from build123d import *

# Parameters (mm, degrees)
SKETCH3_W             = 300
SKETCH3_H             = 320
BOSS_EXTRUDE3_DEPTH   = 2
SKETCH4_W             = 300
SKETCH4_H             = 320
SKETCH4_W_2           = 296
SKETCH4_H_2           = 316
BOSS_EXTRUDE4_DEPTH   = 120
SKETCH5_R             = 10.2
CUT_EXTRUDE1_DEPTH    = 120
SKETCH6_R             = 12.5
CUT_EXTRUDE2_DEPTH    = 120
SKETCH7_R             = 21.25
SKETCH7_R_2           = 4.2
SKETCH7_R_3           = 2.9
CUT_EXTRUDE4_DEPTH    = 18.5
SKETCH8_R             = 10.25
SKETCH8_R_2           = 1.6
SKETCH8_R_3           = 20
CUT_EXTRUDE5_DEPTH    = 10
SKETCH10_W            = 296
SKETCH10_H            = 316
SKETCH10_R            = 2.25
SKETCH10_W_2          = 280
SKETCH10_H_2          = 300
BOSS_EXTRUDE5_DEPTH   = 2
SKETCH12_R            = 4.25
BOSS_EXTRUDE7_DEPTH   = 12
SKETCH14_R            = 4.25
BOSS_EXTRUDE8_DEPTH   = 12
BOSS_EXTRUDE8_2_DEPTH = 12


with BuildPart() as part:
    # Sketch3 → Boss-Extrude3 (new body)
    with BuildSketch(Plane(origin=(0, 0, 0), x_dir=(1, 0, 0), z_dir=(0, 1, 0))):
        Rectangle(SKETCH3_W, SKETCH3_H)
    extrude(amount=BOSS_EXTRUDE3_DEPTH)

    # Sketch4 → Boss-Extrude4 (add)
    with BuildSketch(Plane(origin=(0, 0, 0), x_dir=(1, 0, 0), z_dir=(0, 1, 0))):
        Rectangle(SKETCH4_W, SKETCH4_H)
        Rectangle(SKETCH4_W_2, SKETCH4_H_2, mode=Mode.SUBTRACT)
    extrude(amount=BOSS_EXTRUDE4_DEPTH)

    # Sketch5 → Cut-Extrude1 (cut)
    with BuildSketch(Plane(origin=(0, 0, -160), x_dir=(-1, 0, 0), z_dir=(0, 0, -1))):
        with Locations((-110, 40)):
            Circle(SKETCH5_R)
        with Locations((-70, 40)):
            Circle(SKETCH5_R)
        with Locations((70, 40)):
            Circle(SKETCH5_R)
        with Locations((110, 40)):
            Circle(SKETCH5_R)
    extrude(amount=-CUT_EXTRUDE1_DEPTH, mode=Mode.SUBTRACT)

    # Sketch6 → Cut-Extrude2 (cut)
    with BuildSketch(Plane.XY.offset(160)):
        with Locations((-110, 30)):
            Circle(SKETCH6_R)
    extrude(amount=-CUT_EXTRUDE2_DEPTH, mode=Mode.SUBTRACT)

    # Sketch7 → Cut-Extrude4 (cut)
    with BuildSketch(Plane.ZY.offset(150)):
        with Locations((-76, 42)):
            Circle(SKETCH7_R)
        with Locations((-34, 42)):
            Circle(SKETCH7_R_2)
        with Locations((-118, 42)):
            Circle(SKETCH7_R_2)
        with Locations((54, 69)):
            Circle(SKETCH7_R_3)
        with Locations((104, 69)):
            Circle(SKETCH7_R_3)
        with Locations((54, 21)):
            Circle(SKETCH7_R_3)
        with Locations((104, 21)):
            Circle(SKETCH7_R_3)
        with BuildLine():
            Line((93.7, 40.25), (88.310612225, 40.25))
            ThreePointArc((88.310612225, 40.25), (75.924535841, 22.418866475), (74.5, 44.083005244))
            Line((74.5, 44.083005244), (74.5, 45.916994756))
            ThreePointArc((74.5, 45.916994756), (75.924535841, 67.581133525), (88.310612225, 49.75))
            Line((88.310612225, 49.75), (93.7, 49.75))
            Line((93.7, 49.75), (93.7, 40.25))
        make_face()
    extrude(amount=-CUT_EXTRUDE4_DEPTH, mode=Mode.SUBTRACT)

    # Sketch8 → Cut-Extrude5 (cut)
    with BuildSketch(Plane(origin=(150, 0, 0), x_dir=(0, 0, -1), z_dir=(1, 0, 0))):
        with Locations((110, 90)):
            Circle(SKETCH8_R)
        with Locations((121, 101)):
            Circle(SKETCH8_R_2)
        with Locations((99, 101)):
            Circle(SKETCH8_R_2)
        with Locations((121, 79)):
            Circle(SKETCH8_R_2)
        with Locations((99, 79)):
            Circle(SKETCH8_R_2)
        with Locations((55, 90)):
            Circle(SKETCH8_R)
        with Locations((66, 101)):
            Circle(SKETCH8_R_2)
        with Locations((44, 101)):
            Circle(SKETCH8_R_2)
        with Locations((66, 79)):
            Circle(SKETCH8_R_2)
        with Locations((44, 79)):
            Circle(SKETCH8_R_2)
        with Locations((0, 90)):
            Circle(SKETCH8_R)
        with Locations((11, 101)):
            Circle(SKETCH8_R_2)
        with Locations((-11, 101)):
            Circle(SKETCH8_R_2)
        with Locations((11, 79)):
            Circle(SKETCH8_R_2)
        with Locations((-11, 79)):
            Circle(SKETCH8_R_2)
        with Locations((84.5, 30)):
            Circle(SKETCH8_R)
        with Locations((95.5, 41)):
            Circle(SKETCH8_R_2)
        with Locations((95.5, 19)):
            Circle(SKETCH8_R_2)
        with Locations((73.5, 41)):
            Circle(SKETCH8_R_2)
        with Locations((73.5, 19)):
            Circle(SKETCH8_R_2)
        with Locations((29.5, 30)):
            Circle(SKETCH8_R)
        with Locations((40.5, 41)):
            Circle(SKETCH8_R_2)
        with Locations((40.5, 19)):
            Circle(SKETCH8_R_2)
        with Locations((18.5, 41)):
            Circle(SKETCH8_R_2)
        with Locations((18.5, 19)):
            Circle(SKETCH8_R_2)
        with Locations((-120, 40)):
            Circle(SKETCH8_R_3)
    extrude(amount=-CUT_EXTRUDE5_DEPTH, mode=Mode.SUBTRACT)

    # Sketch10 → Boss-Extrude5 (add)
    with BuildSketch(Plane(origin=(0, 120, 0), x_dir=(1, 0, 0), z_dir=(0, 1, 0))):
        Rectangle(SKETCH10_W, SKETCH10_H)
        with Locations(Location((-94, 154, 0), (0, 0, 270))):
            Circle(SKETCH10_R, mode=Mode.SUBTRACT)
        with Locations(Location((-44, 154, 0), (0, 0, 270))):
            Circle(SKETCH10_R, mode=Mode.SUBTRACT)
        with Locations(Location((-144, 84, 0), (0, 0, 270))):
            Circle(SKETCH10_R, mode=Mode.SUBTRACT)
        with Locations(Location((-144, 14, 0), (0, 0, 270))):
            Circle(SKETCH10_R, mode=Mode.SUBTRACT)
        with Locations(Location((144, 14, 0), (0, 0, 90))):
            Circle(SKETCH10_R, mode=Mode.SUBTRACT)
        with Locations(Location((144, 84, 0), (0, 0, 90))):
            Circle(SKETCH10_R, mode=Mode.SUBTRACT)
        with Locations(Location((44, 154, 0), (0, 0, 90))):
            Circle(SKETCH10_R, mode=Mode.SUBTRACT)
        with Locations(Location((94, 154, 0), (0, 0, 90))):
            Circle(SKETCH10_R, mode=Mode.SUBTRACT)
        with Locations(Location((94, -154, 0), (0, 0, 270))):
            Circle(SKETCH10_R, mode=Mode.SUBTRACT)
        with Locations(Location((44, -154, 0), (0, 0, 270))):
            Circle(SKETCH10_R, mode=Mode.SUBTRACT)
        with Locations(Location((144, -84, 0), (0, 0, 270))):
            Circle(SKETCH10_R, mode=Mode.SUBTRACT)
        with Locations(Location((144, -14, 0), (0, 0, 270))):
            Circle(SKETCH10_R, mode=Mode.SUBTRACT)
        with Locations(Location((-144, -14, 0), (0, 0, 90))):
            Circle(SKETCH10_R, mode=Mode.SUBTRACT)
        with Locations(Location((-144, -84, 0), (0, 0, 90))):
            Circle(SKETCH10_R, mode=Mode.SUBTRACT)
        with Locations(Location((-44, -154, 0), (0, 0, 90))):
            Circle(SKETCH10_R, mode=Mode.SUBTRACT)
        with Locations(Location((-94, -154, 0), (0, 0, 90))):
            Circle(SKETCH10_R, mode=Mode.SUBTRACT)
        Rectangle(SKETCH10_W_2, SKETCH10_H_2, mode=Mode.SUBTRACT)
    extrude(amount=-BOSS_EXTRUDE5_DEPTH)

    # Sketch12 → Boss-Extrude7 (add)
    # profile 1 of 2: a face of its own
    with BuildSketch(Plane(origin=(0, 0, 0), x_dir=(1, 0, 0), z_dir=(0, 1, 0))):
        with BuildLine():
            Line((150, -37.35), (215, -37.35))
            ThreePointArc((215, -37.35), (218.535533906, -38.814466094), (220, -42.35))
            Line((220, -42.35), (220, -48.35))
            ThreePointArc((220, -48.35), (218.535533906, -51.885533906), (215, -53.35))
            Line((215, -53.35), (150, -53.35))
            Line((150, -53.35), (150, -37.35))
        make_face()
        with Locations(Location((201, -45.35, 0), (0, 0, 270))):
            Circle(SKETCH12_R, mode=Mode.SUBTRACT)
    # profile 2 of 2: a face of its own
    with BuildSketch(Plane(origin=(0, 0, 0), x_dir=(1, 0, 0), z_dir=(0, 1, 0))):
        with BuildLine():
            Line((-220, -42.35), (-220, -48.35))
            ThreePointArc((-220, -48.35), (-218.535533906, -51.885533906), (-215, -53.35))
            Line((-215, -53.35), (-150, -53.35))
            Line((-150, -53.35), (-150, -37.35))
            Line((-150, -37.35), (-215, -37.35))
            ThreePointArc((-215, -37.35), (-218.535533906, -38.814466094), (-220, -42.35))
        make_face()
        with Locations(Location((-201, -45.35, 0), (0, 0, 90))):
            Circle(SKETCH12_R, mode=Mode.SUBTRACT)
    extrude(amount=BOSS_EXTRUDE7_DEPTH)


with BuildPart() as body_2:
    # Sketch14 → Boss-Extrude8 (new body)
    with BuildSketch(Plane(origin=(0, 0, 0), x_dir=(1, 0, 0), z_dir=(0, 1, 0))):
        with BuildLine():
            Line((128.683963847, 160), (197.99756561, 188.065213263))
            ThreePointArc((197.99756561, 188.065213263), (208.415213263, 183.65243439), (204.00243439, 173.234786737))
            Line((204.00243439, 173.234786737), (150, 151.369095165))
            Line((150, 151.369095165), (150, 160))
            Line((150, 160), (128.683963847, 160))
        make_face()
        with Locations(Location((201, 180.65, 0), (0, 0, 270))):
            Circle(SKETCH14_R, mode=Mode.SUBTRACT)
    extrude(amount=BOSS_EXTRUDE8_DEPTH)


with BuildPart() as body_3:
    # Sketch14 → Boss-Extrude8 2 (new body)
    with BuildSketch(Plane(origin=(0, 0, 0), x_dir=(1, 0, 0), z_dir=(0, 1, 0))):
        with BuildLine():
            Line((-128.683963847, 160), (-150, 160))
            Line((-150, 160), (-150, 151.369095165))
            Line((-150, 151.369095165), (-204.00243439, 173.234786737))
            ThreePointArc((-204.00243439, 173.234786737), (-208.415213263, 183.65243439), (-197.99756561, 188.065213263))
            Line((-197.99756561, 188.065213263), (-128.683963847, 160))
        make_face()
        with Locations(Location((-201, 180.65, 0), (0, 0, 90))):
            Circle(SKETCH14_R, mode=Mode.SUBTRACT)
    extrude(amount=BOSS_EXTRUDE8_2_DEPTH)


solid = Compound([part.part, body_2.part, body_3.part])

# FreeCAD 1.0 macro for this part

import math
import FreeCAD as App
import Part
import Sketcher

V = App.Vector
Q = App.Units.Quantity

doc = App.newDocument("Part")
body = doc.addObject("PartDesign::Body", "Body")

# Sketch on XZ plane
sketch1 = body.newObject("Sketcher::SketchObject", "Sketch")
sketch1.AttachmentSupport = (doc.getObject("XZ_Plane"), [""])
sketch1.MapMode = "FlatFace"
sketch1.addGeometry([
    Part.LineSegment(V(-150, -160, 0), V(-150, 160, 0)),
    Part.LineSegment(V(-150, 160, 0), V(150, 160, 0)),
    Part.LineSegment(V(150, 160, 0), V(150, -160, 0)),
    Part.LineSegment(V(150, -160, 0), V(-150, -160, 0)),
], False)
sketch1.addConstraint([
    Sketcher.Constraint("Coincident", 0, 2, 1, 1),
    Sketcher.Constraint("Coincident", 1, 2, 2, 1),
    Sketcher.Constraint("Coincident", 2, 2, 3, 1),
    Sketcher.Constraint("Coincident", 3, 2, 0, 1),
    Sketcher.Constraint("Vertical", 0),
    Sketcher.Constraint("Horizontal", 1),
    Sketcher.Constraint("Vertical", 2),
    Sketcher.Constraint("Horizontal", 3),
    Sketcher.Constraint("Symmetric", 0, 2, 2, 2, -1, 1),
    Sketcher.Constraint("DistanceX", 1, 1, 1, 2, Q("300 mm")),
    Sketcher.Constraint("DistanceY", 0, 1, 0, 2, Q("320 mm")),
])
pad1 = body.newObject("PartDesign::Pad", "Pad")
pad1.Profile = sketch1
pad1.Length = 2
pad1.Reversed = True

# Sketch on XZ plane
sketch2 = body.newObject("Sketcher::SketchObject", "Sketch001")
sketch2.AttachmentSupport = (doc.getObject("XZ_Plane"), [""])
sketch2.MapMode = "FlatFace"
sketch2.addGeometry([
    Part.LineSegment(V(-150, -160, 0), V(-150, 160, 0)),  # 0
    Part.LineSegment(V(-150, 160, 0), V(150, 160, 0)),  # 1
    Part.LineSegment(V(150, 160, 0), V(150, -160, 0)),  # 2
    Part.LineSegment(V(150, -160, 0), V(-150, -160, 0)),  # 3
    Part.LineSegment(V(148, 158, 0), V(-148, 158, 0)),  # 4
    Part.LineSegment(V(-148, 158, 0), V(-148, -158, 0)),  # 5
    Part.LineSegment(V(-148, -158, 0), V(148, -158, 0)),  # 6
    Part.LineSegment(V(148, -158, 0), V(148, 158, 0)),  # 7
], False)
sketch2.addConstraint([
    Sketcher.Constraint("Coincident", 0, 2, 1, 1),
    Sketcher.Constraint("Coincident", 1, 2, 2, 1),
    Sketcher.Constraint("Coincident", 2, 2, 3, 1),
    Sketcher.Constraint("Coincident", 3, 2, 0, 1),
    Sketcher.Constraint("Coincident", 4, 2, 5, 1),
    Sketcher.Constraint("Coincident", 5, 2, 6, 1),
    Sketcher.Constraint("Coincident", 6, 2, 7, 1),
    Sketcher.Constraint("Coincident", 7, 2, 4, 1),
    Sketcher.Constraint("Vertical", 0),
    Sketcher.Constraint("Horizontal", 1),
    Sketcher.Constraint("Vertical", 2),
    Sketcher.Constraint("Horizontal", 3),
    Sketcher.Constraint("Horizontal", 4),
    Sketcher.Constraint("Vertical", 5),
    Sketcher.Constraint("Horizontal", 6),
    Sketcher.Constraint("Vertical", 7),
    Sketcher.Constraint("Symmetric", 0, 2, 2, 2, -1, 1),
    Sketcher.Constraint("Symmetric", 4, 2, 6, 2, -1, 1),
    Sketcher.Constraint("DistanceX", 1, 1, 1, 2, Q("300 mm")),
    Sketcher.Constraint("DistanceX", 4, 2, 4, 1, Q("296 mm")),
    Sketcher.Constraint("DistanceY", 0, 1, 0, 2, Q("320 mm")),
    Sketcher.Constraint("DistanceY", 5, 2, 5, 1, Q("316 mm")),
])
pad2 = body.newObject("PartDesign::Pad", "Pad001")
pad2.Profile = sketch2
pad2.Length = 120
pad2.Reversed = True

# Sketch on XY plane
sketch3 = body.newObject("Sketcher::SketchObject", "Sketch002")
sketch3.AttachmentSupport = (doc.getObject("XY_Plane"), [""])
sketch3.MapMode = "FlatFace"
sketch3.AttachmentOffset = App.Placement(V(0, 0, -160), App.Rotation())
sketch3.addGeometry([
    Part.Circle(V(110, 40, 0), V(0, 0, 1), 10),
    Part.Circle(V(70, 40, 0), V(0, 0, 1), 10),
    Part.Circle(V(-70, 40, 0), V(0, 0, 1), 10),
    Part.Circle(V(-110, 40, 0), V(0, 0, 1), 10),
], False)
sketch3.addConstraint([
    Sketcher.Constraint("Equal", 0, 1),
    Sketcher.Constraint("Equal", 1, 2),
    Sketcher.Constraint("Equal", 2, 3),
    Sketcher.Constraint("Symmetric", 1, 3, 2, 3, -2),
    Sketcher.Constraint("Symmetric", 0, 3, 3, 3, -2),
    Sketcher.Constraint("Horizontal", 0, 3, 1, 3),
    Sketcher.Constraint("Diameter", 0, Q("20.4 mm")),
    Sketcher.Constraint("DistanceX", -1, 1, 0, 3, Q("110 mm")),
    Sketcher.Constraint("DistanceY", -1, 1, 0, 3, Q("40 mm")),
    Sketcher.Constraint("DistanceX", -1, 1, 1, 3, Q("70 mm")),
])
pocket1 = body.newObject("PartDesign::Pocket", "Pocket")
pocket1.Profile = sketch3
pocket1.Length = 120
pocket1.Reversed = True

# Sketch on XY plane
sketch4 = body.newObject("Sketcher::SketchObject", "Sketch003")
sketch4.AttachmentSupport = (doc.getObject("XY_Plane"), [""])
sketch4.MapMode = "FlatFace"
sketch4.AttachmentOffset = App.Placement(V(0, 0, 160), App.Rotation())
sketch4.addGeometry(Part.Circle(V(-110, 30, 0), V(0, 0, 1), 12), False)
sketch4.addConstraint([
    Sketcher.Constraint("Diameter", 0, Q("25 mm")),
    Sketcher.Constraint("DistanceX", 0, 3, -1, 1, Q("110 mm")),
    Sketcher.Constraint("DistanceY", -1, 1, 0, 3, Q("30 mm")),
])
pocket2 = body.newObject("PartDesign::Pocket", "Pocket001")
pocket2.Profile = sketch4
pocket2.Length = 120

# Sketch on YZ plane
sketch5 = body.newObject("Sketcher::SketchObject", "Sketch004")
sketch5.AttachmentSupport = (doc.getObject("YZ_Plane"), [""])
sketch5.MapMode = "FlatFace"
sketch5.AttachmentOffset = App.Placement(V(0, 0, -150), App.Rotation())
sketch5.addGeometry([
    Part.Circle(V(42, -76, 0), V(0, 0, 1), 21.2),  # 0
    Part.Circle(V(42, -34, 0), V(0, 0, 1), 4.2),  # 1
    Part.Circle(V(42, -118, 0), V(0, 0, 1), 4.2),  # 2
    Part.Circle(V(69, 54, 0), V(0, 0, 1), 2.9),  # 3
    Part.Circle(V(69, 104, 0), V(0, 0, 1), 2.9),  # 4
    Part.Circle(V(21, 54, 0), V(0, 0, 1), 2.9),  # 5
    Part.Circle(V(21, 104, 0), V(0, 0, 1), 2.9),  # 6
    Part.LineSegment(V(40.2, 88.3, 0), V(40.2, 93.7, 0)),  # 7
    Part.LineSegment(V(40.2, 93.7, 0), V(49.8, 93.7, 0)),  # 8
    Part.LineSegment(V(49.8, 93.7, 0), V(49.8, 88.3, 0)),  # 9
    Part.ArcOfCircle(Part.Circle(V(56.5, 79, 0), V(0, 0, 1), 11.5), math.radians(-157), math.radians(126)),  # 10
    Part.LineSegment(V(45.9, 74.5, 0), V(44.1, 74.5, 0)),  # 11
    Part.ArcOfCircle(Part.Circle(V(33.5, 79, 0), V(0, 0, 1), 11.5), math.radians(54), math.radians(337)),  # 12
], False)
sketch5.addConstraint([
    Sketcher.Constraint("Coincident", 7, 2, 8, 1),
    Sketcher.Constraint("Coincident", 8, 2, 9, 1),
    Sketcher.Constraint("Coincident", 9, 2, 10, 2),
    Sketcher.Constraint("Coincident", 10, 1, 11, 1),
    Sketcher.Constraint("Coincident", 11, 2, 12, 2),
    Sketcher.Constraint("Coincident", 12, 1, 7, 1),
    Sketcher.Constraint("Vertical", 7),
    Sketcher.Constraint("Horizontal", 8),
    Sketcher.Constraint("Vertical", 9),
    Sketcher.Constraint("Horizontal", 11),
    Sketcher.Constraint("Equal", 1, 2),
    Sketcher.Constraint("Equal", 3, 4),
    Sketcher.Constraint("Equal", 4, 5),
    Sketcher.Constraint("Equal", 5, 6),
    Sketcher.Constraint("Equal", 10, 12),
    Sketcher.Constraint("Horizontal", 3, 3, 5, 3),
    Sketcher.Constraint("Horizontal", 4, 3, 6, 3),
    Sketcher.Constraint("Horizontal", 10, 3, 12, 3),
    Sketcher.Constraint("Horizontal", 9, 2, 12, 1),
    Sketcher.Constraint("Vertical", 0, 3, 1, 3),
    Sketcher.Constraint("Vertical", 1, 3, 2, 3),
    Sketcher.Constraint("Vertical", 3, 3, 4, 3),
    Sketcher.Constraint("Vertical", 5, 3, 6, 3),
    Sketcher.Constraint("Diameter", 0, Q("42.5 mm")),
    Sketcher.Constraint("Diameter", 1, Q("8.4 mm")),
    Sketcher.Constraint("Diameter", 3, Q("5.8 mm")),
    Sketcher.Constraint("Radius", 10, Q("11.5 mm")),
    Sketcher.Constraint("DistanceX", 8, 1, 8, 2, Q("9.5 mm")),
    Sketcher.Constraint("DistanceX", -1, 1, 0, 3, Q("42 mm")),
    Sketcher.Constraint("DistanceY", 0, 3, -1, 1, Q("76 mm")),
    Sketcher.Constraint("DistanceY", 1, 3, -1, 1, Q("34 mm")),
    Sketcher.Constraint("DistanceY", 2, 3, -1, 1, Q("118 mm")),
    Sketcher.Constraint("DistanceX", -1, 1, 3, 3, Q("69 mm")),
    Sketcher.Constraint("DistanceY", -1, 1, 3, 3, Q("54 mm")),
    Sketcher.Constraint("DistanceY", -1, 1, 4, 3, Q("104 mm")),
    Sketcher.Constraint("DistanceX", -1, 1, 5, 3, Q("21 mm")),
    Sketcher.Constraint("DistanceY", -1, 1, 10, 3, Q("79 mm")),
    Sketcher.Constraint("DistanceX", 12, 3, 10, 3, Q("23 mm")),
    Sketcher.Constraint("DistanceX", -1, 1, 10, 3, Q("56.5 mm")),
    Sketcher.Constraint("DistanceY", -1, 1, 7, 2, Q("93.7 mm")),
    Sketcher.Constraint("DistanceY", -1, 1, 10, 1, Q("74.5 mm")),
])
pocket3 = body.newObject("PartDesign::Pocket", "Pocket002")
pocket3.Profile = sketch5
pocket3.Length = 18.5
pocket3.Reversed = True

# Sketch on YZ plane
sketch6 = body.newObject("Sketcher::SketchObject", "Sketch005")
sketch6.AttachmentSupport = (doc.getObject("YZ_Plane"), [""])
sketch6.MapMode = "FlatFace"
sketch6.AttachmentOffset = App.Placement(V(0, 0, 150), App.Rotation())
sketch6.addGeometry([
    Part.Circle(V(90, -110, 0), V(0, 0, 1), 10.2),  # 0
    Part.Circle(V(101, -121, 0), V(0, 0, 1), 1.6),  # 1
    Part.Circle(V(101, -99, 0), V(0, 0, 1), 1.6),  # 2
    Part.Circle(V(79, -121, 0), V(0, 0, 1), 1.6),  # 3
    Part.Circle(V(79, -99, 0), V(0, 0, 1), 1.6),  # 4
    Part.Circle(V(90, -55, 0), V(0, 0, 1), 10.2),  # 5
    Part.Circle(V(101, -66, 0), V(0, 0, 1), 1.6),  # 6
    Part.Circle(V(101, -44, 0), V(0, 0, 1), 1.6),  # 7
    Part.Circle(V(79, -66, 0), V(0, 0, 1), 1.6),  # 8
    Part.Circle(V(79, -44, 0), V(0, 0, 1), 1.6),  # 9
    Part.Circle(V(90, 0, 0), V(0, 0, 1), 10.2),  # 10
    Part.Circle(V(101, -11, 0), V(0, 0, 1), 1.6),  # 11
    Part.Circle(V(101, 11, 0), V(0, 0, 1), 1.6),  # 12
    Part.Circle(V(79, -11, 0), V(0, 0, 1), 1.6),  # 13
    Part.Circle(V(79, 11, 0), V(0, 0, 1), 1.6),  # 14
    Part.Circle(V(30, -84.5, 0), V(0, 0, 1), 10.2),  # 15
    Part.Circle(V(41, -95.5, 0), V(0, 0, 1), 1.6),  # 16
    Part.Circle(V(19, -95.5, 0), V(0, 0, 1), 1.6),  # 17
    Part.Circle(V(41, -73.5, 0), V(0, 0, 1), 1.6),  # 18
    Part.Circle(V(19, -73.5, 0), V(0, 0, 1), 1.6),  # 19
    Part.Circle(V(30, -29.5, 0), V(0, 0, 1), 10.2),  # 20
    Part.Circle(V(41, -40.5, 0), V(0, 0, 1), 1.6),  # 21
    Part.Circle(V(19, -40.5, 0), V(0, 0, 1), 1.6),  # 22
    Part.Circle(V(41, -18.5, 0), V(0, 0, 1), 1.6),  # 23
    Part.Circle(V(19, -18.5, 0), V(0, 0, 1), 1.6),  # 24
    Part.Circle(V(40, 120, 0), V(0, 0, 1), 20),  # 25
], False)
sketch6.addConstraint([
    Sketcher.Constraint("Equal", 1, 2),
    Sketcher.Constraint("Equal", 2, 3),
    Sketcher.Constraint("Equal", 3, 4),
    Sketcher.Constraint("Equal", 0, 5),
    Sketcher.Constraint("Equal", 4, 6),
    Sketcher.Constraint("Equal", 6, 7),
    Sketcher.Constraint("Equal", 7, 8),
    Sketcher.Constraint("Equal", 8, 9),
    Sketcher.Constraint("Equal", 5, 10),
    Sketcher.Constraint("Equal", 9, 11),
    Sketcher.Constraint("Equal", 11, 12),
    Sketcher.Constraint("Equal", 12, 13),
    Sketcher.Constraint("Equal", 13, 14),
    Sketcher.Constraint("Equal", 10, 15),
    Sketcher.Constraint("Equal", 14, 16),
    Sketcher.Constraint("Equal", 16, 17),
    Sketcher.Constraint("Equal", 17, 18),
    Sketcher.Constraint("Equal", 18, 19),
    Sketcher.Constraint("Equal", 15, 20),
    Sketcher.Constraint("Equal", 19, 21),
    Sketcher.Constraint("Equal", 21, 22),
    Sketcher.Constraint("Equal", 22, 23),
    Sketcher.Constraint("Equal", 23, 24),
    Sketcher.Constraint("Symmetric", 11, 3, 12, 3, -1),
    Sketcher.Constraint("Symmetric", 13, 3, 14, 3, -1),
    Sketcher.Constraint("PointOnObject", 10, 3, -1),
    Sketcher.Constraint("Horizontal", 1, 3, 3, 3),
    Sketcher.Constraint("Horizontal", 2, 3, 4, 3),
    Sketcher.Constraint("Horizontal", 6, 3, 8, 3),
    Sketcher.Constraint("Horizontal", 7, 3, 9, 3),
    Sketcher.Constraint("Horizontal", 11, 3, 13, 3),
    Sketcher.Constraint("Horizontal", 16, 3, 17, 3),
    Sketcher.Constraint("Horizontal", 18, 3, 19, 3),
    Sketcher.Constraint("Horizontal", 21, 3, 22, 3),
    Sketcher.Constraint("Horizontal", 23, 3, 24, 3),
    Sketcher.Constraint("Vertical", 1, 3, 2, 3),
    Sketcher.Constraint("Vertical", 3, 3, 4, 3),
    Sketcher.Constraint("Vertical", 0, 3, 5, 3),
    Sketcher.Constraint("Vertical", 2, 3, 6, 3),
    Sketcher.Constraint("Vertical", 6, 3, 7, 3),
    Sketcher.Constraint("Vertical", 4, 3, 8, 3),
    Sketcher.Constraint("Vertical", 8, 3, 9, 3),
    Sketcher.Constraint("Vertical", 5, 3, 10, 3),
    Sketcher.Constraint("Vertical", 7, 3, 11, 3),
    Sketcher.Constraint("Vertical", 9, 3, 13, 3),
    Sketcher.Constraint("Vertical", 16, 3, 18, 3),
    Sketcher.Constraint("Vertical", 17, 3, 19, 3),
    Sketcher.Constraint("Vertical", 15, 3, 20, 3),
    Sketcher.Constraint("Vertical", 18, 3, 21, 3),
    Sketcher.Constraint("Vertical", 19, 3, 22, 3),
    Sketcher.Constraint("Vertical", 21, 3, 23, 3),
    Sketcher.Constraint("Vertical", 22, 3, 24, 3),
    Sketcher.Constraint("Diameter", 25, Q("40 mm")),
    Sketcher.Constraint("Diameter", 0, Q("20.5 mm")),
    Sketcher.Constraint("Diameter", 1, Q("3.2 mm")),
    Sketcher.Constraint("DistanceX", -1, 1, 0, 3, Q("90 mm")),
    Sketcher.Constraint("DistanceY", 0, 3, -1, 1, Q("110 mm")),
    Sketcher.Constraint("DistanceX", -1, 1, 1, 3, Q("101 mm")),
    Sketcher.Constraint("DistanceY", 1, 3, -1, 1, Q("121 mm")),
    Sketcher.Constraint("DistanceY", 2, 3, -1, 1, Q("99 mm")),
    Sketcher.Constraint("DistanceX", -1, 1, 3, 3, Q("79 mm")),
    Sketcher.Constraint("DistanceY", 5, 3, -1, 1, Q("55 mm")),
    Sketcher.Constraint("DistanceY", 6, 3, -1, 1, Q("66 mm")),
    Sketcher.Constraint("DistanceY", 7, 3, -1, 1, Q("44 mm")),
    Sketcher.Constraint("DistanceY", 11, 3, -1, 1, Q("11 mm")),
    Sketcher.Constraint("DistanceX", -1, 1, 15, 3, Q("30 mm")),
    Sketcher.Constraint("DistanceX", -1, 1, 16, 3, Q("41 mm")),
    Sketcher.Constraint("DistanceX", -1, 1, 17, 3, Q("19 mm")),
    Sketcher.Constraint("DistanceX", -1, 1, 25, 3, Q("40 mm")),
    Sketcher.Constraint("DistanceY", -1, 1, 25, 3, Q("120 mm")),
    Sketcher.Constraint("DistanceY", 16, 3, 15, 3, Q("11 mm")),
    Sketcher.Constraint("DistanceY", 15, 3, 18, 3, Q("11 mm")),
    Sketcher.Constraint("DistanceY", 18, 3, 20, 3, Q("44 mm")),
    Sketcher.Constraint("DistanceY", 21, 3, 20, 3, Q("11 mm")),
    Sketcher.Constraint("DistanceY", 20, 3, 23, 3, Q("11 mm")),
    Sketcher.Constraint("DistanceY", 15, 3, -1, 1, Q("84.5 mm")),
])
pocket4 = body.newObject("PartDesign::Pocket", "Pocket003")
pocket4.Profile = sketch6
pocket4.Length = 10

# Sketch on XZ plane
sketch7 = body.newObject("Sketcher::SketchObject", "Sketch006")
sketch7.AttachmentSupport = (doc.getObject("XZ_Plane"), [""])
sketch7.MapMode = "FlatFace"
sketch7.AttachmentOffset = App.Placement(V(0, 0, -120), App.Rotation())
sketch7.addGeometry([
    Part.LineSegment(V(-148, -158, 0), V(-148, 158, 0)),  # 0
    Part.LineSegment(V(-148, 158, 0), V(148, 158, 0)),  # 1
    Part.LineSegment(V(148, 158, 0), V(148, -158, 0)),  # 2
    Part.LineSegment(V(148, -158, 0), V(-148, -158, 0)),  # 3
    Part.Circle(V(-94, 154, 0), V(0, 0, 1), 2.2),  # 4
    Part.Circle(V(-144, 84, 0), V(0, 0, 1), 2.2),  # 5
    Part.Circle(V(-44, 154, 0), V(0, 0, 1), 2.2),  # 6
    Part.Circle(V(-144, 14, 0), V(0, 0, 1), 2.2),  # 7
    Part.Circle(V(44, 154, 0), V(0, 0, 1), 2.2),  # 8
    Part.Circle(V(94, 154, 0), V(0, 0, 1), 2.2),  # 9
    Part.Circle(V(144, 84, 0), V(0, 0, 1), 2.2),  # 10
    Part.Circle(V(144, 14, 0), V(0, 0, 1), 2.2),  # 11
    Part.Circle(V(-144, -14, 0), V(0, 0, 1), 2.2),  # 12
    Part.Circle(V(-144, -84, 0), V(0, 0, 1), 2.2),  # 13
    Part.Circle(V(-94, -154, 0), V(0, 0, 1), 2.2),  # 14
    Part.Circle(V(-44, -154, 0), V(0, 0, 1), 2.2),  # 15
    Part.LineSegment(V(140, 150, 0), V(-140, 150, 0)),  # 16
    Part.LineSegment(V(-140, 150, 0), V(-140, -150, 0)),  # 17
    Part.LineSegment(V(-140, -150, 0), V(140, -150, 0)),  # 18
    Part.LineSegment(V(140, -150, 0), V(140, 150, 0)),  # 19
    Part.Circle(V(144, -14, 0), V(0, 0, 1), 2.2),  # 20
    Part.Circle(V(44, -154, 0), V(0, 0, 1), 2.2),  # 21
    Part.Circle(V(144, -84, 0), V(0, 0, 1), 2.2),  # 22
    Part.Circle(V(94, -154, 0), V(0, 0, 1), 2.2),  # 23
], False)
sketch7.addConstraint([
    Sketcher.Constraint("Coincident", 0, 2, 1, 1),
    Sketcher.Constraint("Coincident", 1, 2, 2, 1),
    Sketcher.Constraint("Coincident", 2, 2, 3, 1),
    Sketcher.Constraint("Coincident", 3, 2, 0, 1),
    Sketcher.Constraint("Coincident", 16, 2, 17, 1),
    Sketcher.Constraint("Coincident", 17, 2, 18, 1),
    Sketcher.Constraint("Coincident", 18, 2, 19, 1),
    Sketcher.Constraint("Coincident", 19, 2, 16, 1),
    Sketcher.Constraint("Vertical", 0),
    Sketcher.Constraint("Horizontal", 1),
    Sketcher.Constraint("Vertical", 2),
    Sketcher.Constraint("Horizontal", 3),
    Sketcher.Constraint("Horizontal", 16),
    Sketcher.Constraint("Vertical", 17),
    Sketcher.Constraint("Horizontal", 18),
    Sketcher.Constraint("Vertical", 19),
    Sketcher.Constraint("Equal", 4, 5),
    Sketcher.Constraint("Equal", 5, 6),
    Sketcher.Constraint("Equal", 6, 7),
    Sketcher.Constraint("Equal", 7, 8),
    Sketcher.Constraint("Equal", 8, 9),
    Sketcher.Constraint("Equal", 9, 10),
    Sketcher.Constraint("Equal", 10, 11),
    Sketcher.Constraint("Equal", 11, 12),
    Sketcher.Constraint("Equal", 12, 13),
    Sketcher.Constraint("Equal", 13, 14),
    Sketcher.Constraint("Equal", 14, 15),
    Sketcher.Constraint("Equal", 15, 20),
    Sketcher.Constraint("Equal", 20, 21),
    Sketcher.Constraint("Equal", 21, 22),
    Sketcher.Constraint("Equal", 22, 23),
    Sketcher.Constraint("Symmetric", 11, 3, 12, 3, -1, 1),
    Sketcher.Constraint("Symmetric", 10, 3, 13, 3, -1, 1),
    Sketcher.Constraint("Symmetric", 9, 3, 14, 3, -1, 1),
    Sketcher.Constraint("Symmetric", 8, 3, 15, 3, -1, 1),
    Sketcher.Constraint("Symmetric", 7, 3, 20, 3, -1, 1),
    Sketcher.Constraint("Symmetric", 6, 3, 21, 3, -1, 1),
    Sketcher.Constraint("Symmetric", 5, 3, 22, 3, -1, 1),
    Sketcher.Constraint("Symmetric", 4, 3, 23, 3, -1, 1),
    Sketcher.Constraint("Symmetric", 0, 2, 2, 2, -1, 1),
    Sketcher.Constraint("Symmetric", 16, 2, 18, 2, -1, 1),
    Sketcher.Constraint("Symmetric", 6, 3, 8, 3, -2),
    Sketcher.Constraint("Symmetric", 4, 3, 9, 3, -2),
    Sketcher.Constraint("Symmetric", 5, 3, 10, 3, -2),
    Sketcher.Constraint("Symmetric", 7, 3, 11, 3, -2),
    Sketcher.Constraint("Horizontal", 4, 3, 6, 3),
    Sketcher.Constraint("Vertical", 5, 3, 7, 3),
    Sketcher.Constraint("Diameter", 4, Q("4.5 mm")),
    Sketcher.Constraint("DistanceX", 1, 1, 1, 2, Q("296 mm")),
    Sketcher.Constraint("DistanceX", 16, 2, 16, 1, Q("280 mm")),
    Sketcher.Constraint("DistanceY", 0, 1, 0, 2, Q("316 mm")),
    Sketcher.Constraint("DistanceY", 17, 2, 17, 1, Q("300 mm")),
    Sketcher.Constraint("DistanceX", 4, 3, -1, 1, Q("94 mm")),
    Sketcher.Constraint("DistanceY", -1, 1, 4, 3, Q("154 mm")),
    Sketcher.Constraint("DistanceX", 5, 3, -1, 1, Q("144 mm")),
    Sketcher.Constraint("DistanceY", -1, 1, 5, 3, Q("84 mm")),
    Sketcher.Constraint("DistanceX", 6, 3, -1, 1, Q("44 mm")),
    Sketcher.Constraint("DistanceY", -1, 1, 7, 3, Q("14 mm")),
])
pad3 = body.newObject("PartDesign::Pad", "Pad002")
pad3.Profile = sketch7
pad3.Length = 2

# Sketch on XZ plane
sketch8 = body.newObject("Sketcher::SketchObject", "Sketch007")
sketch8.AttachmentSupport = (doc.getObject("XZ_Plane"), [""])
sketch8.MapMode = "FlatFace"
sketch8.addGeometry([
    Part.LineSegment(V(215, 37.4, 0), V(150, 37.4, 0)),  # 0
    Part.LineSegment(V(150, 37.4, 0), V(150, 53.4, 0)),  # 1
    Part.LineSegment(V(150, 53.4, 0), V(215, 53.4, 0)),  # 2
    Part.ArcOfCircle(Part.Circle(V(215, 48.4, 0), V(0, 0, 1), 5), math.radians(0), math.radians(90)),  # 3
    Part.LineSegment(V(220, 48.4, 0), V(220, 42.4, 0)),  # 4
    Part.ArcOfCircle(Part.Circle(V(215, 42.4, 0), V(0, 0, 1), 5), math.radians(-90), math.radians(0)),  # 5
    Part.Circle(V(201, 45.4, 0), V(0, 0, 1), 4.2),  # 6
    Part.LineSegment(V(-220, 42.4, 0), V(-220, 48.4, 0)),  # 7
    Part.ArcOfCircle(Part.Circle(V(-215, 48.4, 0), V(0, 0, 1), 5), math.radians(90), math.radians(180)),  # 8
    Part.LineSegment(V(-215, 53.4, 0), V(-150, 53.4, 0)),  # 9
    Part.LineSegment(V(-150, 53.4, 0), V(-150, 37.4, 0)),  # 10
    Part.LineSegment(V(-150, 37.4, 0), V(-215, 37.4, 0)),  # 11
    Part.ArcOfCircle(Part.Circle(V(-215, 42.4, 0), V(0, 0, 1), 5), math.radians(180), math.radians(270)),  # 12
    Part.Circle(V(-201, 45.4, 0), V(0, 0, 1), 4.2),  # 13
], False)
sketch8.addConstraint([
    Sketcher.Constraint("Coincident", 0, 2, 1, 1),
    Sketcher.Constraint("Coincident", 1, 2, 2, 1),
    Sketcher.Constraint("Tangent", 2, 2, 3, 2),
    Sketcher.Constraint("Tangent", 3, 1, 4, 1),
    Sketcher.Constraint("Tangent", 4, 2, 5, 2),
    Sketcher.Constraint("Tangent", 5, 1, 0, 1),
    Sketcher.Constraint("Tangent", 7, 2, 8, 2),
    Sketcher.Constraint("Tangent", 8, 1, 9, 1),
    Sketcher.Constraint("Coincident", 9, 2, 10, 1),
    Sketcher.Constraint("Coincident", 10, 2, 11, 1),
    Sketcher.Constraint("Tangent", 11, 2, 12, 2),
    Sketcher.Constraint("Tangent", 12, 1, 7, 1),
    Sketcher.Constraint("Horizontal", 0),
    Sketcher.Constraint("Vertical", 1),
    Sketcher.Constraint("Horizontal", 2),
    Sketcher.Constraint("Vertical", 4),
    Sketcher.Constraint("Vertical", 7),
    Sketcher.Constraint("Horizontal", 9),
    Sketcher.Constraint("Vertical", 10),
    Sketcher.Constraint("Horizontal", 11),
    Sketcher.Constraint("Equal", 3, 5),
    Sketcher.Constraint("Equal", 5, 8),
    Sketcher.Constraint("Equal", 8, 12),
    Sketcher.Constraint("Equal", 6, 13),
    Sketcher.Constraint("Symmetric", 3, 3, 8, 3, -2),
    Sketcher.Constraint("Symmetric", 6, 3, 13, 3, -2),
    Sketcher.Constraint("Symmetric", 0, 2, 10, 2, -2),
    Sketcher.Constraint("Radius", 3, Q("5 mm")),
    Sketcher.Constraint("Diameter", 6, Q("8.5 mm")),
    Sketcher.Constraint("DistanceX", 0, 2, 0, 1, Q("65 mm")),
    Sketcher.Constraint("DistanceY", 1, 1, 1, 2, Q("16 mm")),
    Sketcher.Constraint("DistanceX", -1, 1, 3, 3, Q("215 mm")),
    Sketcher.Constraint("DistanceX", -1, 1, 6, 3, Q("201 mm")),
    Sketcher.Constraint("DistanceY", 6, 3, 3, 3, Q("3 mm")),
    Sketcher.Constraint("DistanceY", -1, 1, 3, 3, Q("48.35 mm")),
])
pad4 = body.newObject("PartDesign::Pad", "Pad003")
pad4.Profile = sketch8
pad4.Length = 12
pad4.Reversed = True
body2 = doc.addObject("PartDesign::Body", "Body001")

# Sketch on XZ plane
sketch9 = body2.newObject("Sketcher::SketchObject", "Sketch008")
sketch9.AttachmentSupport = (doc.getObject("XZ_Plane001"), [""])
sketch9.MapMode = "FlatFace"
sketch9.addGeometry([
    Part.LineSegment(V(198, -188.1, 0), V(128.7, -160, 0)),  # 0
    Part.LineSegment(V(128.7, -160, 0), V(150, -160, 0)),  # 1
    Part.LineSegment(V(150, -160, 0), V(150, -151.4, 0)),  # 2
    Part.LineSegment(V(150, -151.4, 0), V(204, -173.2, 0)),  # 3
    Part.ArcOfCircle(Part.Circle(V(201, -180.7, 0), V(0, 0, 1), 8), math.radians(-112), math.radians(68)),  # 4
    Part.Circle(V(201, -180.7, 0), V(0, 0, 1), 4.2),  # 5
], False)
sketch9.addConstraint([
    Sketcher.Constraint("Coincident", 0, 2, 1, 1),
    Sketcher.Constraint("Coincident", 1, 2, 2, 1),
    Sketcher.Constraint("Coincident", 2, 2, 3, 1),
    Sketcher.Constraint("Tangent", 3, 2, 4, 2),
    Sketcher.Constraint("Tangent", 4, 1, 0, 1),
    Sketcher.Constraint("Horizontal", 1),
    Sketcher.Constraint("Vertical", 2),
    Sketcher.Constraint("Coincident", 5, 3, 4, 3),
    Sketcher.Constraint("Parallel", 0, 3),
    Sketcher.Constraint("Radius", 4, Q("8 mm")),
    Sketcher.Constraint("Diameter", 5, Q("8.5 mm")),
    Sketcher.Constraint("DistanceX", -1, 1, 4, 3, Q("201 mm")),
    Sketcher.Constraint("DistanceY", 0, 2, -1, 1, Q("160 mm")),
    Sketcher.Constraint("DistanceX", -1, 1, 1, 2, Q("150 mm")),
    Sketcher.Constraint("DistanceY", 4, 3, -1, 1, Q("180.65 mm")),
    Sketcher.Constraint("DistanceX", 1, 1, 1, 2, Q("21.316036 mm")),
])
pad5 = body2.newObject("PartDesign::Pad", "Pad004")
pad5.Profile = sketch9
pad5.Length = 12
pad5.Reversed = True
body3 = doc.addObject("PartDesign::Body", "Body002")

# Sketch on XZ plane
sketch10 = body3.newObject("Sketcher::SketchObject", "Sketch009")
sketch10.AttachmentSupport = (doc.getObject("XZ_Plane002"), [""])
sketch10.MapMode = "FlatFace"
sketch10.addGeometry([
    Part.LineSegment(V(-150, -160, 0), V(-128.7, -160, 0)),  # 0
    Part.LineSegment(V(-128.7, -160, 0), V(-198, -188.1, 0)),  # 1
    Part.ArcOfCircle(Part.Circle(V(-201, -180.7, 0), V(0, 0, 1), 8), math.radians(112), math.radians(292)),  # 2
    Part.LineSegment(V(-204, -173.2, 0), V(-150, -151.4, 0)),  # 3
    Part.LineSegment(V(-150, -151.4, 0), V(-150, -160, 0)),  # 4
    Part.Circle(V(-201, -180.7, 0), V(0, 0, 1), 4.2),  # 5
], False)
sketch10.addConstraint([
    Sketcher.Constraint("Coincident", 0, 2, 1, 1),
    Sketcher.Constraint("Tangent", 1, 2, 2, 2),
    Sketcher.Constraint("Tangent", 2, 1, 3, 1),
    Sketcher.Constraint("Coincident", 3, 2, 4, 1),
    Sketcher.Constraint("Coincident", 4, 2, 0, 1),
    Sketcher.Constraint("Horizontal", 0),
    Sketcher.Constraint("Vertical", 4),
    Sketcher.Constraint("Coincident", 5, 3, 2, 3),
    Sketcher.Constraint("Parallel", 1, 3),
    Sketcher.Constraint("Radius", 2, Q("8 mm")),
    Sketcher.Constraint("Diameter", 5, Q("8.5 mm")),
    Sketcher.Constraint("DistanceX", 2, 3, -1, 1, Q("201 mm")),
    Sketcher.Constraint("DistanceY", 0, 2, -1, 1, Q("160 mm")),
    Sketcher.Constraint("DistanceX", 3, 2, -1, 1, Q("150 mm")),
    Sketcher.Constraint("DistanceY", 2, 3, -1, 1, Q("180.65 mm")),
    Sketcher.Constraint("DistanceX", 1, 2, 0, 2, Q("69.313602 mm")),
])
pad6 = body3.newObject("PartDesign::Pad", "Pad005")
pad6.Profile = sketch10
pad6.Length = 12
pad6.Reversed = True

doc.recompute()
